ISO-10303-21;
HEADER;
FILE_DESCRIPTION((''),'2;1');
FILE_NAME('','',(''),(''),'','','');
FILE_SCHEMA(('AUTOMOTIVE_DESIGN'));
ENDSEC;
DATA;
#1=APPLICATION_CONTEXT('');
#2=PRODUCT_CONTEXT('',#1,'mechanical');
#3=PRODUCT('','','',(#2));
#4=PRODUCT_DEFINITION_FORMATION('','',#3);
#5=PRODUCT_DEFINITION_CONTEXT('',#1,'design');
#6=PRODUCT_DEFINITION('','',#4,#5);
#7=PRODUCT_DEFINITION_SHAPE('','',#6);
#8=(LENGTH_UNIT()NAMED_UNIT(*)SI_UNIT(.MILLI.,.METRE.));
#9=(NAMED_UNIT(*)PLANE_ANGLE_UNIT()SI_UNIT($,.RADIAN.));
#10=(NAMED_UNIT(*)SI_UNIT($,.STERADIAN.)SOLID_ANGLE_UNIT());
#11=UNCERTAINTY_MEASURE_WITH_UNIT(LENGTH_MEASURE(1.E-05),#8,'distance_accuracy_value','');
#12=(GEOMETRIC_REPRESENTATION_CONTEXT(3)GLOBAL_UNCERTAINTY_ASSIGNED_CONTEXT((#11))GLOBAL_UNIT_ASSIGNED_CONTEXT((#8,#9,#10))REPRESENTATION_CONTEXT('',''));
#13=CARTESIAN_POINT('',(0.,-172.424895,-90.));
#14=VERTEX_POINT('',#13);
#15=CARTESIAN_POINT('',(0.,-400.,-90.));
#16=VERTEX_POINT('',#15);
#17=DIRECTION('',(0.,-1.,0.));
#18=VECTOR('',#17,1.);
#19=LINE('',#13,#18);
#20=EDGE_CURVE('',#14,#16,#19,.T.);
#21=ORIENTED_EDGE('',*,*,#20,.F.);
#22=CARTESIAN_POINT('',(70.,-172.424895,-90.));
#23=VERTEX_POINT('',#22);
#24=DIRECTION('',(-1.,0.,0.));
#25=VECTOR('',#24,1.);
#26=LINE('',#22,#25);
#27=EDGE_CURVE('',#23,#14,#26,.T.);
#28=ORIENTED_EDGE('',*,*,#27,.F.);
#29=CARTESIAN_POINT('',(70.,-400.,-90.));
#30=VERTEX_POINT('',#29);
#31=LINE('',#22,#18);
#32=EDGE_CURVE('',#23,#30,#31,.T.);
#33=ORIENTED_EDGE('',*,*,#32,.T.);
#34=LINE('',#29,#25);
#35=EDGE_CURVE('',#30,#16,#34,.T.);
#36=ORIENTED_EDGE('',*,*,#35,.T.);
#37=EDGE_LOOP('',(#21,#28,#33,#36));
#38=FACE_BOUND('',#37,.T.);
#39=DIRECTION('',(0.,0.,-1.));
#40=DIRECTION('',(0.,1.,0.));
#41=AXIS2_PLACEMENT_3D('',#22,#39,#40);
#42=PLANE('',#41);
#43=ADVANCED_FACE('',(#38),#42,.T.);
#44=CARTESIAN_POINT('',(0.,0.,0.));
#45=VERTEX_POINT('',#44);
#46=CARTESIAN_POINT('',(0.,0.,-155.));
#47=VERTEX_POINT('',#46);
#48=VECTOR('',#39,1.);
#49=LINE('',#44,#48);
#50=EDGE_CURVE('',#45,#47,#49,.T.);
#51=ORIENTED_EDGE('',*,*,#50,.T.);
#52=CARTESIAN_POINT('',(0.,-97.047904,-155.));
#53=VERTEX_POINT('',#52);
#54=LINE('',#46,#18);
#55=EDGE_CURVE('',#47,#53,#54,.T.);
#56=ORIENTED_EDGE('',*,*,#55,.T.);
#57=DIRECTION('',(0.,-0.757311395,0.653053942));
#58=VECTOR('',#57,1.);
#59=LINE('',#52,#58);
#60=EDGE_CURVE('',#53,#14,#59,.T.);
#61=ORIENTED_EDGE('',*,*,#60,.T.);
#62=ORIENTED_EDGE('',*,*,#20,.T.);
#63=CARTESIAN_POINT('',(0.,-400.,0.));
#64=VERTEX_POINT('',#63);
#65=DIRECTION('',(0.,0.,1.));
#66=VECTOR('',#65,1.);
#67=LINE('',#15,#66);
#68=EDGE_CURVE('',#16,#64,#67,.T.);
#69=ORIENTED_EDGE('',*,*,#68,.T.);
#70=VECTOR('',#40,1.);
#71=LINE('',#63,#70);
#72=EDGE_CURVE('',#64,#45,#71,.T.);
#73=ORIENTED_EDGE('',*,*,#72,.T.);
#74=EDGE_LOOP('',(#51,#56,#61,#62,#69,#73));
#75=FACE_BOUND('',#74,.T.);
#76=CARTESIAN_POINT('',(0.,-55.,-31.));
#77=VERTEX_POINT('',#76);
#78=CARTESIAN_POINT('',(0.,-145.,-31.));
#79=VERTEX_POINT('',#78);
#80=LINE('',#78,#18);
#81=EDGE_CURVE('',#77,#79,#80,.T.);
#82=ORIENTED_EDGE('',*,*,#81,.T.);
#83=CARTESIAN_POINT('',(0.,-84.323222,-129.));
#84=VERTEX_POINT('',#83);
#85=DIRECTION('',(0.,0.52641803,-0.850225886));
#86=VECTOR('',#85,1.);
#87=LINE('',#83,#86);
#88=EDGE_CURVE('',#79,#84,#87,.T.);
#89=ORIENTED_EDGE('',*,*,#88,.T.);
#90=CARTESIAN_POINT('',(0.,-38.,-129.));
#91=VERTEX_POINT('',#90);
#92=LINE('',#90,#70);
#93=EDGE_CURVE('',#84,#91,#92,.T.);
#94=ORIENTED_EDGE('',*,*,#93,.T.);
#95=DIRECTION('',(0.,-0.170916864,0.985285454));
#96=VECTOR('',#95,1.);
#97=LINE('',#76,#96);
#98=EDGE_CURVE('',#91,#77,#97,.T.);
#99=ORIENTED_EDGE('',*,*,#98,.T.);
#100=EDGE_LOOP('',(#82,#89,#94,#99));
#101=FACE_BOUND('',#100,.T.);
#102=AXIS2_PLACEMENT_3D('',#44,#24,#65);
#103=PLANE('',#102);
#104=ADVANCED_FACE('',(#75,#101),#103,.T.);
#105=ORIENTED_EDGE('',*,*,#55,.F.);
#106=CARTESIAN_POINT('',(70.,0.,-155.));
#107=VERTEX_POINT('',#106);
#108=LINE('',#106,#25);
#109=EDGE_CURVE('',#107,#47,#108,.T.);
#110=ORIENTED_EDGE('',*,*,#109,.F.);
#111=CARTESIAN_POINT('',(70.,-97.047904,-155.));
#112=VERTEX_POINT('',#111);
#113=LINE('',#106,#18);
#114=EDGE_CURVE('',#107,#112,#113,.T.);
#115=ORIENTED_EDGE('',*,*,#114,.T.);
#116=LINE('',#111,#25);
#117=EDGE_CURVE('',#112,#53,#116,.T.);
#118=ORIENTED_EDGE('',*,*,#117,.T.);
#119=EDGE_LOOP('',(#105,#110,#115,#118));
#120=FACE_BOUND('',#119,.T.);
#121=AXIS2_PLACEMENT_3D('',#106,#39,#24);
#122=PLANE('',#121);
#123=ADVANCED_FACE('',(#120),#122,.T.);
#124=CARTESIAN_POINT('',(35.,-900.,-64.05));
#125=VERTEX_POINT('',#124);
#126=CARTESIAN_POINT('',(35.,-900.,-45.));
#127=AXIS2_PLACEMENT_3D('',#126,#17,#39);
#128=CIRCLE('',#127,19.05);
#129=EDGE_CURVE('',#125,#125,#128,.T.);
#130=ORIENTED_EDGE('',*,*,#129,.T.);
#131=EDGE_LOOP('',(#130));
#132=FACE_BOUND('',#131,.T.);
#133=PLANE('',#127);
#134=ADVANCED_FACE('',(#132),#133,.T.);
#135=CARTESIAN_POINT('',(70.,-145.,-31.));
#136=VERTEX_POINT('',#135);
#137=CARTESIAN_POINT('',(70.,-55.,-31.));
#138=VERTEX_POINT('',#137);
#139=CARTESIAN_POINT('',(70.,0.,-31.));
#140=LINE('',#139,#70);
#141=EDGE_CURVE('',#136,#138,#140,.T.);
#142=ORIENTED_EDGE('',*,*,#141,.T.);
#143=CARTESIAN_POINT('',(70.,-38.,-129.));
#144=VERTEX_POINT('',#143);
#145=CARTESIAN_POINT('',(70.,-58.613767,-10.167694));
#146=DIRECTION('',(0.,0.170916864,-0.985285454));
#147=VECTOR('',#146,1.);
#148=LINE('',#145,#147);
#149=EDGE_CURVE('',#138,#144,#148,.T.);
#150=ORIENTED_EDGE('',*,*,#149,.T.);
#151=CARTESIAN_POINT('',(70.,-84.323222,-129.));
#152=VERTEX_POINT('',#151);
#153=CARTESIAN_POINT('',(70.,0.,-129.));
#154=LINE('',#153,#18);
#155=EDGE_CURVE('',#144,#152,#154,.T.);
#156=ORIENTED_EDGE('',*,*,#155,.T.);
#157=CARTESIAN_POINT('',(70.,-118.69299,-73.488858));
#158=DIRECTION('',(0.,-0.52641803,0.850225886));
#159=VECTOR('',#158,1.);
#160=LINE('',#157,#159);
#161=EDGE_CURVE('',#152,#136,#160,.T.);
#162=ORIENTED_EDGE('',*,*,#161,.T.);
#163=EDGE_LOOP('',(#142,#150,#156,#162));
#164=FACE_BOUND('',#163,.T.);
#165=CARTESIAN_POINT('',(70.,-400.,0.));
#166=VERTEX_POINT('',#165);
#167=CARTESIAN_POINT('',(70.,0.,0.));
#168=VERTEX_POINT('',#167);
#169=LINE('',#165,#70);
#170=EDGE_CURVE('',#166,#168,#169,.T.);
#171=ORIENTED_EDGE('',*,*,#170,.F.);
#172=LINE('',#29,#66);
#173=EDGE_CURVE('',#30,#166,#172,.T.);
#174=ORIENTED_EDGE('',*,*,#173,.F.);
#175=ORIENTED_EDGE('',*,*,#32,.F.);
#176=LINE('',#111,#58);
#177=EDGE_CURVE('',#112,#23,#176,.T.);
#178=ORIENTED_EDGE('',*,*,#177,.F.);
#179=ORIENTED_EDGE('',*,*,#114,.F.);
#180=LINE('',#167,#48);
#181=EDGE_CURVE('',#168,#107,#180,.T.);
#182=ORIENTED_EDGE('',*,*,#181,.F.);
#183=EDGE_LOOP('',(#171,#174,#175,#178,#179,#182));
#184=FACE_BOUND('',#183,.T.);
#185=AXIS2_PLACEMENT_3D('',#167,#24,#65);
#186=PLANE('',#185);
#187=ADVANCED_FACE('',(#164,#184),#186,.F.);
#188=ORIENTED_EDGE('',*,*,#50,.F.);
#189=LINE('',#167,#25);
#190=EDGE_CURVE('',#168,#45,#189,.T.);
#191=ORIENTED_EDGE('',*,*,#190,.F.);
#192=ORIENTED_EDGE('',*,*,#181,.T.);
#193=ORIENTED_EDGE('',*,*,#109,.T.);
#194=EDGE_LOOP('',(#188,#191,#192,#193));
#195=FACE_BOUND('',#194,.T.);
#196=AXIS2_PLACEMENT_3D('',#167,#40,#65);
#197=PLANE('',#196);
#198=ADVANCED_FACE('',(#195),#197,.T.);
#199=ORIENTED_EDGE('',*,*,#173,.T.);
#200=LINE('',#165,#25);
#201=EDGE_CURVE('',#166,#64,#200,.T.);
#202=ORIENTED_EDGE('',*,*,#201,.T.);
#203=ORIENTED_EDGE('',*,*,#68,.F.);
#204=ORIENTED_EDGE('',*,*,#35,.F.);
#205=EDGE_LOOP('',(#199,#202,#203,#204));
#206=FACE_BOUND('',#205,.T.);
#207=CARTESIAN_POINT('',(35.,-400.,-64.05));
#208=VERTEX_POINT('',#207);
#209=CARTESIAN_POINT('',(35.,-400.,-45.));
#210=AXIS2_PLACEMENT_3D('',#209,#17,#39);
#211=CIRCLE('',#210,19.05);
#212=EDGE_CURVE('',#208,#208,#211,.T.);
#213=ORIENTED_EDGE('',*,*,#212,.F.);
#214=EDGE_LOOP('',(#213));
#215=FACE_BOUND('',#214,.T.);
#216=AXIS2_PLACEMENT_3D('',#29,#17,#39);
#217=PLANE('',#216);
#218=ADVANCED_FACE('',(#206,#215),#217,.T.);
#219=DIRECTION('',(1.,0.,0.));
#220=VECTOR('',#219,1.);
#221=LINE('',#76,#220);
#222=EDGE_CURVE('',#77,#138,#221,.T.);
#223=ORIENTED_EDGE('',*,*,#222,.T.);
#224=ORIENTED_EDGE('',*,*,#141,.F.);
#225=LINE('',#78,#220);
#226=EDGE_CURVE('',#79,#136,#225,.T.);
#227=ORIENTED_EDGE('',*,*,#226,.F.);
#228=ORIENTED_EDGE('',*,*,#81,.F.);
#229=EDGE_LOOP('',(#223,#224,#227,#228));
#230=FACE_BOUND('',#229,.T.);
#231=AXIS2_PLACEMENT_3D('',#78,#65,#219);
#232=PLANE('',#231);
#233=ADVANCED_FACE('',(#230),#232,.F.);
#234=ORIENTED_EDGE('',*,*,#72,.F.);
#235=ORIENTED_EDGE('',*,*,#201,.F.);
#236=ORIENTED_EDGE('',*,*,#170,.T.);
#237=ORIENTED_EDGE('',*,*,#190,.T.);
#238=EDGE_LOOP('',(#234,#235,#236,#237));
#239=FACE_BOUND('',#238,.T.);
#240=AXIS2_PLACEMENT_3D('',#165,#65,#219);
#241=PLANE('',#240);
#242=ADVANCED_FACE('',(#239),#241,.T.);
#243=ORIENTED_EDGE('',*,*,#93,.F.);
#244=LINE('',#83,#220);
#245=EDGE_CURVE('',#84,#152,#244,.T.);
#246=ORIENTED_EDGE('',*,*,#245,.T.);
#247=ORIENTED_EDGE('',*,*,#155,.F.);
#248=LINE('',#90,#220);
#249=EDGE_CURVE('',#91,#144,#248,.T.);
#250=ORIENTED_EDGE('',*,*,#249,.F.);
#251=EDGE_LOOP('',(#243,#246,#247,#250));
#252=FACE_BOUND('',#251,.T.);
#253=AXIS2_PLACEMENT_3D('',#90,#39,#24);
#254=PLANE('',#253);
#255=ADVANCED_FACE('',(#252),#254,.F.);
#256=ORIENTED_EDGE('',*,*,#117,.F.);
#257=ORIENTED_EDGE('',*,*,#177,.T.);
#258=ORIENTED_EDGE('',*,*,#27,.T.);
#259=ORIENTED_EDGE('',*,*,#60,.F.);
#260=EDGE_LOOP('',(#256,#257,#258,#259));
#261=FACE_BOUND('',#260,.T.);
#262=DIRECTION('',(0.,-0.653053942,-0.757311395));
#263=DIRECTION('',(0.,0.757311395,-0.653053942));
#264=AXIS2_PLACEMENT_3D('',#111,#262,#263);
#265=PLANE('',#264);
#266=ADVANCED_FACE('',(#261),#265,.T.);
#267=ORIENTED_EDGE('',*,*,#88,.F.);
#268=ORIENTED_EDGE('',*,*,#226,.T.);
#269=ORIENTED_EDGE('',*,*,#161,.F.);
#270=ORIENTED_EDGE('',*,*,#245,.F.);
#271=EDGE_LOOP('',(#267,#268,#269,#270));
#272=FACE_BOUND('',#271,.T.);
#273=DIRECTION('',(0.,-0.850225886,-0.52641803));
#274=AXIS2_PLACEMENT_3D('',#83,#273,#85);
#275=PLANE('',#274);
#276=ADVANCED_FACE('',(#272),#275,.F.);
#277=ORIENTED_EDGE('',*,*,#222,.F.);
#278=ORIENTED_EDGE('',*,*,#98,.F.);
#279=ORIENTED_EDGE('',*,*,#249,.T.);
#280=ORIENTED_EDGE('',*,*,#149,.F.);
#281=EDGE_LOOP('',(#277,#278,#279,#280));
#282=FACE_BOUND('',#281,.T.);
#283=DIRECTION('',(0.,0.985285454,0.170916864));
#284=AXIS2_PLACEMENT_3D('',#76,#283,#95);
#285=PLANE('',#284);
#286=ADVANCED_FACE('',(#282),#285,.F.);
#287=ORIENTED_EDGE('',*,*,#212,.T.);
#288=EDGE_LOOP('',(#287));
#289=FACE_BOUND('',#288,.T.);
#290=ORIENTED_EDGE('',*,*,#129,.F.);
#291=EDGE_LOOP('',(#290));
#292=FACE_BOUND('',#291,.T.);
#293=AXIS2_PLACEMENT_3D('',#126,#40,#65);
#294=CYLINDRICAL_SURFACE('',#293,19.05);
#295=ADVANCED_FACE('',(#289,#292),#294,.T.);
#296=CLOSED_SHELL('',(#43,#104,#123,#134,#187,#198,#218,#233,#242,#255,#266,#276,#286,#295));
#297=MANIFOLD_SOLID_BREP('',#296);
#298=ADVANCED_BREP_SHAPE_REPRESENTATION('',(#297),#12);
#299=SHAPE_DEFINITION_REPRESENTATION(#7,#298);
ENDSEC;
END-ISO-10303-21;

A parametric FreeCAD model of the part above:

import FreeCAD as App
import Part
import Sketcher
from FreeCAD import Vector
Q = App.Units.Quantity


def add_polygon(sketch, points):
    """Adds a closed chain of lines whose ends are joined by coincident constraints."""
    first, n = sketch.GeometryCount, len(points)
    for a, b in zip(points, points[1:] + points[:1]):
        sketch.addGeometry(Part.LineSegment(App.Vector(*a, 0), App.Vector(*b, 0)), False)
    for i in range(n):
        sketch.addConstraint(Sketcher.Constraint("Coincident", first + i, 2, first + (i + 1) % n, 1))

doc = App.newDocument("Part")
body = doc.addObject("PartDesign::Body", "Body")

sketch1 = body.newObject("Sketcher::SketchObject", "Sketch")
sketch1.AttachmentSupport = (doc.getObject("YZ_Plane"), [""])
sketch1.MapMode = "FlatFace"
add_polygon(sketch1, [(0, -155), (0, 0), (-400, 0), (-400, -90), (-172, -90), (-97, -155)])
sketch1.addConstraint([
    Sketcher.Constraint("Vertical", 0),
    Sketcher.Constraint("Horizontal", 1),
    Sketcher.Constraint("Vertical", 2),
    Sketcher.Constraint("Horizontal", 3),
    Sketcher.Constraint("Horizontal", 5),
    Sketcher.Constraint("Coincident", 0, 2, -1, 1),
    Sketcher.Constraint("DistanceX", 1, 2, 1, 1, Q("400 mm")),
    Sketcher.Constraint("DistanceY", 0, 1, 0, 2, Q("155 mm")),
    Sketcher.Constraint("DistanceY", 2, 2, 2, 1, Q("90 mm")),
    Sketcher.Constraint("Distance", 4, Q("99.53236 mm")),
    Sketcher.Constraint("DistanceX", 3, 1, 3, 2, Q("227.575105 mm")),
])
pad1 = body.newObject("PartDesign::Pad", "Pad")
pad1.Profile = sketch1
pad1.Length = 70

sketch2 = body.newObject("Sketcher::SketchObject", "Sketch001")
sketch2.AttachmentSupport = (doc.getObject("YZ_Plane"), [""])
sketch2.MapMode = "FlatFace"
sketch2.AttachmentOffset = App.Placement(Vector(0, 0, 70), App.Rotation())
add_polygon(sketch2, [(-38, -129), (-55, -31), (-145, -31), (-84, -129)])
sketch2.addConstraint([
    Sketcher.Constraint("Horizontal", 1),
    Sketcher.Constraint("Horizontal", 3),
    Sketcher.Constraint("DistanceX", 1, 2, 1, 1, Q("90 mm")),
    Sketcher.Constraint("DistanceX", 0, 2, -1, 1, Q("55 mm")),
    Sketcher.Constraint("DistanceY", 0, 2, -1, 1, Q("31 mm")),
    Sketcher.Constraint("DistanceY", 2, 2, -1, 1, Q("129 mm")),
    Sketcher.Constraint("DistanceX", 3, 2, -1, 1, Q("38 mm")),
    Sketcher.Constraint("DistanceX", 3, 1, 3, 2, Q("46.323222 mm")),
])
pocket1 = body.newObject("PartDesign::Pocket", "Pocket")
pocket1.Profile = sketch2
pocket1.Type = "ThroughAll"
pocket1.Midplane = True

sketch3 = body.newObject("Sketcher::SketchObject", "Sketch002")
sketch3.AttachmentSupport = (doc.getObject("XZ_Plane"), [""])
sketch3.MapMode = "FlatFace"
sketch3.AttachmentOffset = App.Placement(Vector(0, 0, 400), App.Rotation())
sketch3.addGeometry(Part.Circle(Vector(35, -45, 0), Vector(0, 0, 1), 19), False)
sketch3.addConstraint([
    Sketcher.Constraint("Diameter", 0, Q("38.1 mm")),
    Sketcher.Constraint("DistanceX", -1, 1, 0, 3, Q("35 mm")),
    Sketcher.Constraint("DistanceY", 0, 3, -1, 1, Q("45 mm")),
])
pad2 = body.newObject("PartDesign::Pad", "Pad001")
pad2.Profile = sketch3
pad2.Length = 500

doc.recompute()
